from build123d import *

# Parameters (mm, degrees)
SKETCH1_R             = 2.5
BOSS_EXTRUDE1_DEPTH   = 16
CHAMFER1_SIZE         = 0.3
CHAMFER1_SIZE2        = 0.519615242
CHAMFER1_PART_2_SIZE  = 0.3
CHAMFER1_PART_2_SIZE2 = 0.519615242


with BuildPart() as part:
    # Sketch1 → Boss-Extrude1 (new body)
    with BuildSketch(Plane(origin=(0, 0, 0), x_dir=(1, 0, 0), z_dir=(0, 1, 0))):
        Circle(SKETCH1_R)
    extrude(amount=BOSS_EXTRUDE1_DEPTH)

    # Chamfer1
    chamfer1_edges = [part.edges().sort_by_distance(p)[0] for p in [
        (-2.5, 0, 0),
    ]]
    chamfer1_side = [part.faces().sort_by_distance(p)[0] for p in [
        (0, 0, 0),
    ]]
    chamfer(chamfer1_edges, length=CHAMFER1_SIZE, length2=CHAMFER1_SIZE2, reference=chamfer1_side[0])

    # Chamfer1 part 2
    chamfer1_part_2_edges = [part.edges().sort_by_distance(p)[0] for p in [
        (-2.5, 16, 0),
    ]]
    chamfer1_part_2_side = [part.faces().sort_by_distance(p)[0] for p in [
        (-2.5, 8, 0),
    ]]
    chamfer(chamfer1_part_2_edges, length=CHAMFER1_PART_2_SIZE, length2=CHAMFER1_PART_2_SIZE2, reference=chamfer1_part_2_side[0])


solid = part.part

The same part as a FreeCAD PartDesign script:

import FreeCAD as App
import Part
import Sketcher


def edges_at(feature, points):
    """Names of the edges that pass closest to the given points."""
    edges = feature.Shape.Edges
    near = lambda p: min(range(len(edges)), key=lambda i: edges[i].distToShape(Part.Vertex(*p))[0])
    return sorted({f"Edge{near(p) + 1}" for p in points})

doc = App.newDocument("Part")
body = doc.addObject("PartDesign::Body", "Body")

sketch1 = doc.addObject("Sketcher::SketchObject", "Sketch")
body.addObject(sketch1)
sketch1.AttachmentSupport = (doc.XZ_Plane, [""])
sketch1.MapMode = "FlatFace"
sketch1.addGeometry(Part.Circle(App.Vector(0, 0, 0), App.Vector(0, 0, 1), 2.5), False)
sketch1.addConstraint(Sketcher.Constraint("Coincident", 0, 3, -1, 1))
sketch1.addConstraint(Sketcher.Constraint("Diameter", 0, 5.0))
pad1 = doc.addObject("PartDesign::Pad", "Pad")
body.addObject(pad1)
pad1.Profile = sketch1
pad1.Length = 16
pad1.Reversed = True
doc.recompute()

chamfer = doc.addObject("PartDesign::Chamfer", "Chamfer")
body.addObject(chamfer)
chamfer.Base = (pad1, edges_at(pad1, [(-2.5, 0, 0)]))
chamfer.ChamferType = "Two distances"
chamfer.Size = 0.3
chamfer.Size2 = 0.519615
chamfer.FlipDirection = True
doc.recompute()

chamfer2 = doc.addObject("PartDesign::Chamfer", "Chamfer001")
body.addObject(chamfer2)
chamfer2.Base = (chamfer, edges_at(chamfer, [(-2.5, 16, 0)]))
chamfer2.ChamferType = "Two distances"
chamfer2.Size = 0.3
chamfer2.Size2 = 0.519615

doc.recompute()
